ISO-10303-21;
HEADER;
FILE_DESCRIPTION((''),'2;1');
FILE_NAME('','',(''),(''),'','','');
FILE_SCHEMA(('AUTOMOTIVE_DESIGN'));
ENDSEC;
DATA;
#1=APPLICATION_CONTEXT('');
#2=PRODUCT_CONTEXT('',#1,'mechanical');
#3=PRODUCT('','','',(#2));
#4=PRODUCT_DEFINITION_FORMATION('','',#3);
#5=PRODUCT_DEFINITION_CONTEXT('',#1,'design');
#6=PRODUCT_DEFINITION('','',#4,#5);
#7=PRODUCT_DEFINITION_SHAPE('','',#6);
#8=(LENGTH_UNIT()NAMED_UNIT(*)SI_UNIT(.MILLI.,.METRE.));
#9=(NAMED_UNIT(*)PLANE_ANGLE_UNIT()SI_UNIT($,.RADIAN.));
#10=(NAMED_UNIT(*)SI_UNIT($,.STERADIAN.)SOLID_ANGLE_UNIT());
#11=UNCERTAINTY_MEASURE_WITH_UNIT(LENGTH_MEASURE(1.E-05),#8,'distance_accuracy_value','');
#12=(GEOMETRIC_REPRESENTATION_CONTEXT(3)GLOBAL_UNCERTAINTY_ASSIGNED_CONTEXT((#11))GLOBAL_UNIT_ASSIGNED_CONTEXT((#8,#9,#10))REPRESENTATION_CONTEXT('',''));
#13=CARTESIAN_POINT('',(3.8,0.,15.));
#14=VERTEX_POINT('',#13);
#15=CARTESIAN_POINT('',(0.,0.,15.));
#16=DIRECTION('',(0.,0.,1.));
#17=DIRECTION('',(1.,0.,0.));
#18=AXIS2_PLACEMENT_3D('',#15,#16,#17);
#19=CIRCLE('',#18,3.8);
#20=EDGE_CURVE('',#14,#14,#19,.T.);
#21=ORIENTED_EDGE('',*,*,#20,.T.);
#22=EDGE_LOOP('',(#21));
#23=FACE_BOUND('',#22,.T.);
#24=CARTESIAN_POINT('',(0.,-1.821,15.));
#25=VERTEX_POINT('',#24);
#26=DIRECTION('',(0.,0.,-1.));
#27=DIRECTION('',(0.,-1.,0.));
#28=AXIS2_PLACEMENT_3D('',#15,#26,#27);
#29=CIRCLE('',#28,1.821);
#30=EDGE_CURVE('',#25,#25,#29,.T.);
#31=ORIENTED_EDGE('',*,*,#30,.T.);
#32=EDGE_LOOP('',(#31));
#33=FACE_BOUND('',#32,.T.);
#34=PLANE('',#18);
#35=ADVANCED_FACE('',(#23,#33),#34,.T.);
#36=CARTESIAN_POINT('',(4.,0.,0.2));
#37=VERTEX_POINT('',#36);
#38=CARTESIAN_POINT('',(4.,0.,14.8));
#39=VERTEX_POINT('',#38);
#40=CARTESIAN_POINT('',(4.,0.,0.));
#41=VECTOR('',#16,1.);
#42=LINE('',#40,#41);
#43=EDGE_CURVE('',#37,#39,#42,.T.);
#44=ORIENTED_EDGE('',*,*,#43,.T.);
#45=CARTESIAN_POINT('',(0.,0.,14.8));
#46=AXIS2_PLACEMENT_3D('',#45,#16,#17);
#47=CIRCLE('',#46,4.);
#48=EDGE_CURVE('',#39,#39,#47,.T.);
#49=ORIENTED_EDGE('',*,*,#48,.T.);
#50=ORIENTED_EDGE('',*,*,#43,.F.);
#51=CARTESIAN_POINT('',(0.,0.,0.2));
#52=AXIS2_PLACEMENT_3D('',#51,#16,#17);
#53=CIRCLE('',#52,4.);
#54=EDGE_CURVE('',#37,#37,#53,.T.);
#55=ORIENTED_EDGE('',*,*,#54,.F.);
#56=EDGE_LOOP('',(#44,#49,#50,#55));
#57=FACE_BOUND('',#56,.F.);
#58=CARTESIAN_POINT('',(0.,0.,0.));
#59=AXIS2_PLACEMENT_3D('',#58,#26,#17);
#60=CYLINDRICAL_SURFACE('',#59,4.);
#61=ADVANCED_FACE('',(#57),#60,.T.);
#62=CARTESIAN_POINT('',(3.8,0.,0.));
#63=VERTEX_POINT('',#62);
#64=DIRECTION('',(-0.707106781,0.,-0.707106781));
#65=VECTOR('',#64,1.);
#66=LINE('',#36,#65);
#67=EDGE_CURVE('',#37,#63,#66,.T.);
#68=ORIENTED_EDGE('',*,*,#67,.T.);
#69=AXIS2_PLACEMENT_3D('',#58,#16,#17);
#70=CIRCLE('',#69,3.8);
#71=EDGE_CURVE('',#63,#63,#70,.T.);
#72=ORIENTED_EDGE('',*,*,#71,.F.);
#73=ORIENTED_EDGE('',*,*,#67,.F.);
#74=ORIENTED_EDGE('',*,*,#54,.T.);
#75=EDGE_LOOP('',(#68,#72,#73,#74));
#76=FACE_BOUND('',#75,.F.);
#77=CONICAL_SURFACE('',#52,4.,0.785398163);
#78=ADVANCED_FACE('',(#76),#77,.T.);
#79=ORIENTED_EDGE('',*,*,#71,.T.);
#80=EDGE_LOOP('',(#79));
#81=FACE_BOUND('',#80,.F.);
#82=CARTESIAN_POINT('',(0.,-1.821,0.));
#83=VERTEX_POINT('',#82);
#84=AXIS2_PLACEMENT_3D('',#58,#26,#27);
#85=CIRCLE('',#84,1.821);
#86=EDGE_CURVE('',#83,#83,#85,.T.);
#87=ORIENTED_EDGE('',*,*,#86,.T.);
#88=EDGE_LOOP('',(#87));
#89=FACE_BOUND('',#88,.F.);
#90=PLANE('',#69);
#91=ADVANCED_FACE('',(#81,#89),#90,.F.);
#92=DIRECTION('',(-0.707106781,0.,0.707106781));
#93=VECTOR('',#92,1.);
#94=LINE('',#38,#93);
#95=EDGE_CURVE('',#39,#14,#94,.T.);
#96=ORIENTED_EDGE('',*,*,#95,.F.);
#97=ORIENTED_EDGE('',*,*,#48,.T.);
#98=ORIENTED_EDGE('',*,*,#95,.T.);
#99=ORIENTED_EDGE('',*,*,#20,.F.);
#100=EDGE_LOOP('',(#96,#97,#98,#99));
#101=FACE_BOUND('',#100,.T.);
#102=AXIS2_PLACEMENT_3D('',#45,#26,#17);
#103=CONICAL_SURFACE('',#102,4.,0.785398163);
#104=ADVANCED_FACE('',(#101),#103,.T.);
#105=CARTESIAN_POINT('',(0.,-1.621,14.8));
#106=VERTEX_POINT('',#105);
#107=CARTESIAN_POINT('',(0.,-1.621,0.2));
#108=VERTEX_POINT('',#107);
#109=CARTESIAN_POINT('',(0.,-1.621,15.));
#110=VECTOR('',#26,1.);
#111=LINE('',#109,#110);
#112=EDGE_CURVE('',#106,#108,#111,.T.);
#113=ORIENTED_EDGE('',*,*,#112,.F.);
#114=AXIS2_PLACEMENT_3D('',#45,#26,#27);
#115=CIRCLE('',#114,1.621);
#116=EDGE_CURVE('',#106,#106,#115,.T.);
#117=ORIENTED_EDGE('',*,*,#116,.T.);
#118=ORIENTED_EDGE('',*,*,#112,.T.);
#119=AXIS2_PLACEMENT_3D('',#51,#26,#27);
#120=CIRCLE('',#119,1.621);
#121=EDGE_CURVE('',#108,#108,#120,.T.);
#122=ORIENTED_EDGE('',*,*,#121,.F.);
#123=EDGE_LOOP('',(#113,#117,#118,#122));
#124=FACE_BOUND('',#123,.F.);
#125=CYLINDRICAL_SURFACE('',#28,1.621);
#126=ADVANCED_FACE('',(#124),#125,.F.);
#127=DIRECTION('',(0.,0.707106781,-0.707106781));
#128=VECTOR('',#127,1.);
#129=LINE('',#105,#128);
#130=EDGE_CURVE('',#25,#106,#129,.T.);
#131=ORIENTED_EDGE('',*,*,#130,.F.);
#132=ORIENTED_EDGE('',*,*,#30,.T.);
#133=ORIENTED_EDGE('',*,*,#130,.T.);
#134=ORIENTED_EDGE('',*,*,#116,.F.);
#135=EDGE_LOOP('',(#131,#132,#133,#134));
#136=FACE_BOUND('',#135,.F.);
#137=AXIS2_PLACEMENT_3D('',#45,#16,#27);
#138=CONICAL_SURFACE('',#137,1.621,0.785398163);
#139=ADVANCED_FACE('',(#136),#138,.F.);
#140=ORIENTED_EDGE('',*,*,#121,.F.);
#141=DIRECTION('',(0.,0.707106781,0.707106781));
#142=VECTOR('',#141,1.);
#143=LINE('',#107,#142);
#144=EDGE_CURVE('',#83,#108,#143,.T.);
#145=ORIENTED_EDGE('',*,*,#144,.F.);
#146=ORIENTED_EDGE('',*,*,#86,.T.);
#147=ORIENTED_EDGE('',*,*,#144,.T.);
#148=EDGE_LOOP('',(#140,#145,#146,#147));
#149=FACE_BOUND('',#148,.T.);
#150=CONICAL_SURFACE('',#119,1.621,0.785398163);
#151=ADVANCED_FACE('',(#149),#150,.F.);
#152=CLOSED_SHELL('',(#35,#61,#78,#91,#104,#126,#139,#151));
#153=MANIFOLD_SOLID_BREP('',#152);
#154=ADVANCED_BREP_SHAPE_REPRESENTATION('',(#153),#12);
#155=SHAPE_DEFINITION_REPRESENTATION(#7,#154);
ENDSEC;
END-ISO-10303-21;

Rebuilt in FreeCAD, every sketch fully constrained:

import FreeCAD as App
import Part
import Sketcher


def edges_at(feature, points):
    """Names of the edges that pass closest to the given points."""
    edges = feature.Shape.Edges
    near = lambda p: min(range(len(edges)), key=lambda i: edges[i].distToShape(Part.Vertex(*p))[0])
    return sorted({f"Edge{near(p) + 1}" for p in points})

doc = App.newDocument("Part")
body = doc.addObject("PartDesign::Body", "Body")

# Sketch on XY plane
sketch1 = body.newObject("Sketcher::SketchObject", "Sketch")
sketch1.AttachmentSupport = (doc.getObject("XY_Plane"), [""])
sketch1.MapMode = "FlatFace"
sketch1.addGeometry(Part.Circle(App.Vector(0, 0, 0), App.Vector(0, 0, 1), 4), False)
sketch1.addConstraint([
    Sketcher.Constraint("Coincident", 0, 3, -1, 1),
    Sketcher.Constraint("Diameter", 0, 8.0),
])
pad1 = body.newObject("PartDesign::Pad", "Pad")
pad1.Profile = sketch1
pad1.Length = 15

# Sketch on XY plane
sketch2 = body.newObject("Sketcher::SketchObject", "Sketch001")
sketch2.AttachmentSupport = (doc.getObject("XY_Plane"), [""])
sketch2.MapMode = "FlatFace"
sketch2.AttachmentOffset = App.Placement(App.Vector(0, 0, 15), App.Rotation())
sketch2.addGeometry(Part.Circle(App.Vector(0, 0, 0), App.Vector(0, 0, 1), 1.6), False)
sketch2.addConstraint([
    Sketcher.Constraint("Coincident", 0, 3, -1, 1),
    Sketcher.Constraint("Diameter", 0, 3.242),
])
doc.recompute()
hole = body.newObject("PartDesign::Hole", "Hole")
hole.Profile = sketch2
hole.ThreadType = "None"
hole.Diameter = 3.242
hole.DepthType = "ThroughAll"
doc.recompute()

chamfer = body.newObject("PartDesign::Chamfer", "Chamfer")
chamfer.Base = (hole, edges_at(hole, [
    (0, 1.621, 15),
    (0, 1.621, 0),
    (-4, 0, 15),
    (-4, 0, 0),
]))
chamfer.Size = 0.2

doc.recompute()
